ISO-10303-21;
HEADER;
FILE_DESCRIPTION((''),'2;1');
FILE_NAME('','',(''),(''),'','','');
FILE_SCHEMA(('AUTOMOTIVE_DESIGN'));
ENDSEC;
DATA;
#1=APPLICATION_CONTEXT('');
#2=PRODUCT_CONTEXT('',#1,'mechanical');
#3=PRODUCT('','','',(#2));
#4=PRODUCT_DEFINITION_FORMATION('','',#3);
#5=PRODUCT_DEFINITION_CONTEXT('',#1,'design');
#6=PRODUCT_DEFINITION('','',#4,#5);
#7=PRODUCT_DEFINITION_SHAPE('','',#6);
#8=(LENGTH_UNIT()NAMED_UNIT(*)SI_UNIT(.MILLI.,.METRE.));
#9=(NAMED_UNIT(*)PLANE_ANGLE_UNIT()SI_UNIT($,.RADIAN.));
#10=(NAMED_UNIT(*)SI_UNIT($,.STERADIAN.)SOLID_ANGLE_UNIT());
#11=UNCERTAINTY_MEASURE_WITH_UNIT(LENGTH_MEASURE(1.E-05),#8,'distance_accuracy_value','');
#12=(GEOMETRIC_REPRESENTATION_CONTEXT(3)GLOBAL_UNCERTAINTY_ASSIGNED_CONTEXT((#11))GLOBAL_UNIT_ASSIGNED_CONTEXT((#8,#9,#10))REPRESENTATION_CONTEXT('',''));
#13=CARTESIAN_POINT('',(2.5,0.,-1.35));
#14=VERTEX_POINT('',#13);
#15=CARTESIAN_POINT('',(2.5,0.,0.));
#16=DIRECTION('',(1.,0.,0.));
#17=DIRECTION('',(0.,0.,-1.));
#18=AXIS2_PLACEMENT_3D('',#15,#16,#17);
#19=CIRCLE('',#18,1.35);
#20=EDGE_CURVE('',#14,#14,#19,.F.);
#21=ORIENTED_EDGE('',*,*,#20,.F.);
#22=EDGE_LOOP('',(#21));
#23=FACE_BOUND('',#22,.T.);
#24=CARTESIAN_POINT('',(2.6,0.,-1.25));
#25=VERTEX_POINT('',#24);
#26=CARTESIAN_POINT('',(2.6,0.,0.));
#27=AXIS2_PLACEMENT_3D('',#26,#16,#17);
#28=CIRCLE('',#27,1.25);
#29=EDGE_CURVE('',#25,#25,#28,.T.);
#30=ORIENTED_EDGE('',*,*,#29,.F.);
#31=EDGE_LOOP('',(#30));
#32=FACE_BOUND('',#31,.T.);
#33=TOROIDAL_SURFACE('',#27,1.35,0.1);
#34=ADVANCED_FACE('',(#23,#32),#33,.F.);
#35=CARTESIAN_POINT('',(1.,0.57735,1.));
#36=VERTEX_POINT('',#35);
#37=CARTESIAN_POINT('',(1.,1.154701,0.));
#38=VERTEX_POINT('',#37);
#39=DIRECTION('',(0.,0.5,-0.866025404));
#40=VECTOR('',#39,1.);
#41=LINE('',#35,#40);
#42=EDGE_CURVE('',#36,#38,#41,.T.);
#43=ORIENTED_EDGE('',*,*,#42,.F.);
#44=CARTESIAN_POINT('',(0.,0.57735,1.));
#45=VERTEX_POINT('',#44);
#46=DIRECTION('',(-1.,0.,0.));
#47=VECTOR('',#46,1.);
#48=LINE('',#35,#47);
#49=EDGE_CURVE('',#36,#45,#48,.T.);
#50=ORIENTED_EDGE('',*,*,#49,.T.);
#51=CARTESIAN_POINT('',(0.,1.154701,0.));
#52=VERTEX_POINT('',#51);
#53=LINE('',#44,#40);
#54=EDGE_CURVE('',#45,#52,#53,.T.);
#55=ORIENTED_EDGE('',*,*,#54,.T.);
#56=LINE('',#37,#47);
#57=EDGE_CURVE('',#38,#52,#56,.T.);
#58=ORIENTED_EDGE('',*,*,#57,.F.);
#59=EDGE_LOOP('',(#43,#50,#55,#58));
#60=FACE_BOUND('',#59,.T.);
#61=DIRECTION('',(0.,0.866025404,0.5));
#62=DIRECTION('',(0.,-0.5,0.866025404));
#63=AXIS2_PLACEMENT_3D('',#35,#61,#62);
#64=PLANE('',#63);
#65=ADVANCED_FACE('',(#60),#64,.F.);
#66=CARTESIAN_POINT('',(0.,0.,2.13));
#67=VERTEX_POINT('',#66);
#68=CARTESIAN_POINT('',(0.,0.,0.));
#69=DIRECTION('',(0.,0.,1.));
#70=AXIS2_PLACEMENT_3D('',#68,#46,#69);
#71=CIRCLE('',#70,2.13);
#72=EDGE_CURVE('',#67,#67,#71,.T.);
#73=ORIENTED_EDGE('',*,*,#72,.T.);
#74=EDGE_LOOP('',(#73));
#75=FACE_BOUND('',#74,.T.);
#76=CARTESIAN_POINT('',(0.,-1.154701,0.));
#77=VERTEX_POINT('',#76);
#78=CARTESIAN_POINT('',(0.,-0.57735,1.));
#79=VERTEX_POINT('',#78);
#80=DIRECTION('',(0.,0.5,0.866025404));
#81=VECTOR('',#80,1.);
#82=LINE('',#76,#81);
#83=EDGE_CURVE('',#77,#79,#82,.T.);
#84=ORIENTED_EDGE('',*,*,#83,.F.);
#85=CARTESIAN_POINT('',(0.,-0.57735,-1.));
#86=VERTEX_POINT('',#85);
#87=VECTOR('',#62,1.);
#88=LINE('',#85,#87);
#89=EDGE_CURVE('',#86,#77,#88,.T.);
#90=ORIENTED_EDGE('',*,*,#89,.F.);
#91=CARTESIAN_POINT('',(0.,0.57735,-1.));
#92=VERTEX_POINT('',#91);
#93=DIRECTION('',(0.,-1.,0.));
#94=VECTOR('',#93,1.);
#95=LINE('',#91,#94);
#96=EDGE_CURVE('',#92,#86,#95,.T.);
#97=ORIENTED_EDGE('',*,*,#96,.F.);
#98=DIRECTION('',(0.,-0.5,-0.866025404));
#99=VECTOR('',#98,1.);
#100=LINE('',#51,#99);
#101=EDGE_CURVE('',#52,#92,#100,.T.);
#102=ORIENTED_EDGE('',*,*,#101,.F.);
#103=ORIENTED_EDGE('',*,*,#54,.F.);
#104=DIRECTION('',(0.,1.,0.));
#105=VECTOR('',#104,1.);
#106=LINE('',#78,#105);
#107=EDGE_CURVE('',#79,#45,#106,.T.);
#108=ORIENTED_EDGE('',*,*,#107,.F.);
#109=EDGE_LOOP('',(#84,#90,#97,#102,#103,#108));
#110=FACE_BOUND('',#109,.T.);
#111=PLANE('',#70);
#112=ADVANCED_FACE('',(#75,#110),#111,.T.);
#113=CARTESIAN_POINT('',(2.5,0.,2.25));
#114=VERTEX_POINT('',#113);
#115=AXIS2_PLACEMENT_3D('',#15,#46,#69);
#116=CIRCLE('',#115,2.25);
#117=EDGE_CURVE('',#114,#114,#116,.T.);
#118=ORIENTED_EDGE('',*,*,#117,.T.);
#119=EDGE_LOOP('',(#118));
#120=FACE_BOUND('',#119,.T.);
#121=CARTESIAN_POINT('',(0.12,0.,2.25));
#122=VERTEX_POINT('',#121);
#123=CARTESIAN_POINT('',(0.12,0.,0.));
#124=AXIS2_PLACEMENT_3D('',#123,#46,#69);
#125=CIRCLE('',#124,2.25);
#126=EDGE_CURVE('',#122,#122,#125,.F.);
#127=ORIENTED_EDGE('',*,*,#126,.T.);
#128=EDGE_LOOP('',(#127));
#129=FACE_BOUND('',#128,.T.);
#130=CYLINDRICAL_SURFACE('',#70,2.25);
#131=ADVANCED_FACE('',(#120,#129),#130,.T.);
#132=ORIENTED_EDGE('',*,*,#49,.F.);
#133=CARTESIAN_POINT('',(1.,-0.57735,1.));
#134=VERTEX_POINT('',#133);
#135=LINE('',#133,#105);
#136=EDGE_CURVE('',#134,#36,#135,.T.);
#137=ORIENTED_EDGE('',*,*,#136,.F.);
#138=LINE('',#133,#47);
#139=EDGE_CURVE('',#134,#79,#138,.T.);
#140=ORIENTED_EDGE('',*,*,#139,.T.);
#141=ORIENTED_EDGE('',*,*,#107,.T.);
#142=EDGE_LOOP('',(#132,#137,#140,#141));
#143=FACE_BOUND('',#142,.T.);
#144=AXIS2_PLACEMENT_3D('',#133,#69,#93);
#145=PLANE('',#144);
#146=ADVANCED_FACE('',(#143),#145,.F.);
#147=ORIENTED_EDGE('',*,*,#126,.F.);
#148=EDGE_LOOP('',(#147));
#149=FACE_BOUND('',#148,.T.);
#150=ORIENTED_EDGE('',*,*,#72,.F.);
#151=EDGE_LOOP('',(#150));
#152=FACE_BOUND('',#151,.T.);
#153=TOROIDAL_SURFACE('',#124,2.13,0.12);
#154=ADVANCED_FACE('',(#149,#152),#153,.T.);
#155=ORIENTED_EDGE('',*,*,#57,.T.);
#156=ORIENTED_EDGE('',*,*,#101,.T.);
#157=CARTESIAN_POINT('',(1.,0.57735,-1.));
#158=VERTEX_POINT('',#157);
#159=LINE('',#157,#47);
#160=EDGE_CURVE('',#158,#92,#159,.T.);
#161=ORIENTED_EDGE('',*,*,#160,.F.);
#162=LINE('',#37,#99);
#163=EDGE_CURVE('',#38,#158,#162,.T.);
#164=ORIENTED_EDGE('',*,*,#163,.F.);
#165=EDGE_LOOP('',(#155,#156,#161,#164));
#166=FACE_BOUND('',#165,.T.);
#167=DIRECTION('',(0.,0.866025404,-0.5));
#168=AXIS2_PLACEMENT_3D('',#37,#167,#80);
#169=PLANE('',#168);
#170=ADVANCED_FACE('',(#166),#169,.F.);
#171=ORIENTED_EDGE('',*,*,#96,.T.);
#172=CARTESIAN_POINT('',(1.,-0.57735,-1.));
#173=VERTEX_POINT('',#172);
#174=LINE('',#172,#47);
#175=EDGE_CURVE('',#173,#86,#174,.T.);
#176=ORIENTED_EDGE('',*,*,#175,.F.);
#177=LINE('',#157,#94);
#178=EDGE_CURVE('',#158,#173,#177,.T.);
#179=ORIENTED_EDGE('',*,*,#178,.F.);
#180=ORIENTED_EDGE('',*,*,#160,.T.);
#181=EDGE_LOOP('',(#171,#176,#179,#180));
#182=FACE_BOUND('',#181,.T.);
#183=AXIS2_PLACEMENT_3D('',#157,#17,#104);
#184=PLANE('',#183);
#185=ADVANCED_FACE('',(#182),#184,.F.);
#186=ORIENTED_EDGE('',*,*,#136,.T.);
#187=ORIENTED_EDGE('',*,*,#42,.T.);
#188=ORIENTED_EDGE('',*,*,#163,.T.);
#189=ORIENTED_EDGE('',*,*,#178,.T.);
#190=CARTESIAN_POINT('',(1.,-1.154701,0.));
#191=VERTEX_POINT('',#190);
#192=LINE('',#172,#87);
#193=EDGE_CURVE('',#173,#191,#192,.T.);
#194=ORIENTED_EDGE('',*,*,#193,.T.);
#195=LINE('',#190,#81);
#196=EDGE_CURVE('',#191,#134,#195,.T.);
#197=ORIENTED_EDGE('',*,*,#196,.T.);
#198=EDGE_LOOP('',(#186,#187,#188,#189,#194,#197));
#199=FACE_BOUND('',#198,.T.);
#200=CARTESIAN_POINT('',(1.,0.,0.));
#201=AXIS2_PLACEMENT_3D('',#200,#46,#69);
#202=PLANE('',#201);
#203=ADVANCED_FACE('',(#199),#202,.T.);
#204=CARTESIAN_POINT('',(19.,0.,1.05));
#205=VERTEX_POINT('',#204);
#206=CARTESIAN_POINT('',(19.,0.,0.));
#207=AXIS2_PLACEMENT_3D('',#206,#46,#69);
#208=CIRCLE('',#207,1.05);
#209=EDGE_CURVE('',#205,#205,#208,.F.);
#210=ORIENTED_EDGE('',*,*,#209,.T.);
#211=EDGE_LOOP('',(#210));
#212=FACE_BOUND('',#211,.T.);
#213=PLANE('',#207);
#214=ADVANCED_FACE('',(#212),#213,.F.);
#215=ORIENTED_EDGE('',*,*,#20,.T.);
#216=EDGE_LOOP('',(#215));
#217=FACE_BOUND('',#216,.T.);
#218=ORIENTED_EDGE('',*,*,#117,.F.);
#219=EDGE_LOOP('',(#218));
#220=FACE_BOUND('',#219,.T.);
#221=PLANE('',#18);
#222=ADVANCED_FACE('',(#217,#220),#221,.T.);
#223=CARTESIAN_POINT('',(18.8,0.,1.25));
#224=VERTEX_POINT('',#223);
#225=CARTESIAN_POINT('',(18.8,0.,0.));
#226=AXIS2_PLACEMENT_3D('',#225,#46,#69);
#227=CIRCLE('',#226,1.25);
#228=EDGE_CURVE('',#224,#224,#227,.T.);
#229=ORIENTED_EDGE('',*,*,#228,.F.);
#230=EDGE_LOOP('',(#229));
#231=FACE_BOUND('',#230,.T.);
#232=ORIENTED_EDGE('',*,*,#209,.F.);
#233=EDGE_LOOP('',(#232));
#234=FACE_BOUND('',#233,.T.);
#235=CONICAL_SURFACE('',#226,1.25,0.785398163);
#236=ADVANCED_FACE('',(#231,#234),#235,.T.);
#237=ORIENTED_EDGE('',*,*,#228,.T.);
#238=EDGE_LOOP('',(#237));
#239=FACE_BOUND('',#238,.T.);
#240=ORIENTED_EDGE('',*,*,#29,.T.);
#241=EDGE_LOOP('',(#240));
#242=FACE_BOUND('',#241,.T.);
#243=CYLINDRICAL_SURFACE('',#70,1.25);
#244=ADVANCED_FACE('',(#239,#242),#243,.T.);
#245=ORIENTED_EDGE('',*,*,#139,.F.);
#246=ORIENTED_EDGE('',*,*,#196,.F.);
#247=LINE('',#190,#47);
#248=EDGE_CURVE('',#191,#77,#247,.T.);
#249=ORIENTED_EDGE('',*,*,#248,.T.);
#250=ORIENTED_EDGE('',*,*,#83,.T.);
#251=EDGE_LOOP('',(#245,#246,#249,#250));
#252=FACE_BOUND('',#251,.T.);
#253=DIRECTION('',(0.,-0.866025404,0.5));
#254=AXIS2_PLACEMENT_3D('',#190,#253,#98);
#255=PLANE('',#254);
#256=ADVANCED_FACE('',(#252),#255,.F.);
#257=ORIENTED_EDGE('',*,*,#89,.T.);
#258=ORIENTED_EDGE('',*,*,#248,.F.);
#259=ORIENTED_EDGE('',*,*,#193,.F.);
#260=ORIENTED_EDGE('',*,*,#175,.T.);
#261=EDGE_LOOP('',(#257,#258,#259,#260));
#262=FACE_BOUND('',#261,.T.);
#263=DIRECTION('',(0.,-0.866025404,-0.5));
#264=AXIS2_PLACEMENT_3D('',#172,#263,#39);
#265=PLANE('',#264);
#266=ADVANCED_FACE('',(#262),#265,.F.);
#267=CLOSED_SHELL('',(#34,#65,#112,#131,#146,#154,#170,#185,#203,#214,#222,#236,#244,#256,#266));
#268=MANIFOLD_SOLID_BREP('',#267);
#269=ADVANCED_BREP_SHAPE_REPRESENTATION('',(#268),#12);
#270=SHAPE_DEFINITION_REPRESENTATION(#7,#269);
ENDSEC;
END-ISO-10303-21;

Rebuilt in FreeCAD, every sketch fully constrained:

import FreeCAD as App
import Part
import Sketcher

V = App.Vector
Q = App.Units.Quantity


def edges_at(feature, points):
    """Names of the edges that pass closest to the given points."""
    edges = feature.Shape.Edges
    near = lambda p: min(range(len(edges)), key=lambda i: edges[i].distToShape(Part.Vertex(*p))[0])
    return sorted({f"Edge{near(p) + 1}" for p in points})

doc = App.newDocument("Part")
body = doc.addObject("PartDesign::Body", "Body")

# Sketch on XY plane
sketch1 = body.newObject("Sketcher::SketchObject", "Sketch")
sketch1.AttachmentSupport = (doc.getObject("XY_Plane"), [""])
sketch1.MapMode = "FlatFace"
sketch1.addGeometry([
    Part.LineSegment(V(19, 0, 0), V(19, 1.25, 0)),  # 0
    Part.LineSegment(V(19, 1.25, 0), V(2.5, 1.25, 0)),  # 1
    Part.LineSegment(V(2.5, 1.25, 0), V(2.5, 2.25, 0)),  # 2
    Part.LineSegment(V(2.5, 2.25, 0), V(0, 2.25, 0)),  # 3
    Part.LineSegment(V(0, 2.25, 0), V(0, 0, 0)),  # 4
    Part.LineSegment(V(0, 0, 0), V(19, 0, 0)),  # 5
], False)
sketch1.addConstraint([
    Sketcher.Constraint("Coincident", 0, 2, 1, 1),
    Sketcher.Constraint("Coincident", 1, 2, 2, 1),
    Sketcher.Constraint("Coincident", 2, 2, 3, 1),
    Sketcher.Constraint("Coincident", 3, 2, 4, 1),
    Sketcher.Constraint("Coincident", 4, 2, 5, 1),
    Sketcher.Constraint("Coincident", 5, 2, 0, 1),
    Sketcher.Constraint("Vertical", 0),
    Sketcher.Constraint("Horizontal", 1),
    Sketcher.Constraint("Vertical", 2),
    Sketcher.Constraint("Horizontal", 3),
    Sketcher.Constraint("Vertical", 4),
    Sketcher.Constraint("Horizontal", 5),
    Sketcher.Constraint("Coincident", 4, 2, -1, 1),
    Sketcher.Constraint("DistanceX", 5, 1, 5, 2, 19.0),
    Sketcher.Constraint("DistanceY", 2, 1, 2, 2, 1.0),
    Sketcher.Constraint("DistanceX", 1, 2, 1, 1, 16.5),
    Sketcher.Constraint("DistanceY", 0, 1, 0, 2, 1.25),
])
revolution = body.newObject("PartDesign::Revolution", "Revolution")
revolution.Profile = sketch1
revolution.ReferenceAxis = (sketch1, ["H_Axis"])
revolution.Angle = 360
doc.recompute()

fillet = body.newObject("PartDesign::Fillet", "Fillet")
fillet.Base = (revolution, edges_at(revolution, [(2.5, 0, -1.25)]))
fillet.Radius = 0.1
doc.recompute()

fillet2 = body.newObject("PartDesign::Fillet", "Fillet001")
fillet2.Base = (fillet, edges_at(fillet, [(0, 0, -2.25)]))
fillet2.Radius = 0.12
doc.recompute()

chamfer = body.newObject("PartDesign::Chamfer", "Chamfer")
chamfer.Base = (fillet2, edges_at(fillet2, [(19, 0, -1.25)]))
chamfer.Size = 0.2

# Sketch on YZ plane
sketch2 = body.newObject("Sketcher::SketchObject", "Sketch001")
sketch2.AttachmentSupport = (doc.getObject("YZ_Plane"), [""])
sketch2.MapMode = "FlatFace"
sketch2.addGeometry([
    Part.LineSegment(V(1.154701, 0, 0), V(0.57735, -1, 0)),  # 0
    Part.LineSegment(V(0.57735, -1, 0), V(-0.57735, -1, 0)),  # 1
    Part.LineSegment(V(-0.57735, -1, 0), V(-1.154701, 0, 0)),  # 2
    Part.LineSegment(V(-1.154701, 0, 0), V(-0.57735, 1, 0)),  # 3
    Part.LineSegment(V(-0.57735, 1, 0), V(0.57735, 1, 0)),  # 4
    Part.LineSegment(V(0.57735, 1, 0), V(1.154701, 0, 0)),  # 5
], False)
sketch2.addConstraint([
    Sketcher.Constraint("Coincident", 0, 2, 1, 1),
    Sketcher.Constraint("Coincident", 1, 2, 2, 1),
    Sketcher.Constraint("Coincident", 2, 2, 3, 1),
    Sketcher.Constraint("Coincident", 3, 2, 4, 1),
    Sketcher.Constraint("Coincident", 4, 2, 5, 1),
    Sketcher.Constraint("Coincident", 5, 2, 0, 1),
    Sketcher.Constraint("Horizontal", 1),
    Sketcher.Constraint("Horizontal", 4),
    Sketcher.Constraint("Symmetric", 0, 2, 3, 2, -1, 1),
    Sketcher.Constraint("Symmetric", 2, 2, 5, 2, -1, 1),
    Sketcher.Constraint("PointOnObject", 2, 2, -1),
    Sketcher.Constraint("Parallel", 2, 5),
    Sketcher.Constraint("Vertical", 1, 2, 3, 2),
    Sketcher.Constraint("Angle", 0, Q("-120 deg")),
    Sketcher.Constraint("DistanceY", 0, 2, -1, 1, 1.0),
    Sketcher.Constraint("DistanceX", 1, 2, 1, 1, 1.154701),
])
pocket1 = body.newObject("PartDesign::Pocket", "Pocket")
pocket1.Profile = sketch2
pocket1.Length = 1
pocket1.Reversed = True

doc.recompute()
